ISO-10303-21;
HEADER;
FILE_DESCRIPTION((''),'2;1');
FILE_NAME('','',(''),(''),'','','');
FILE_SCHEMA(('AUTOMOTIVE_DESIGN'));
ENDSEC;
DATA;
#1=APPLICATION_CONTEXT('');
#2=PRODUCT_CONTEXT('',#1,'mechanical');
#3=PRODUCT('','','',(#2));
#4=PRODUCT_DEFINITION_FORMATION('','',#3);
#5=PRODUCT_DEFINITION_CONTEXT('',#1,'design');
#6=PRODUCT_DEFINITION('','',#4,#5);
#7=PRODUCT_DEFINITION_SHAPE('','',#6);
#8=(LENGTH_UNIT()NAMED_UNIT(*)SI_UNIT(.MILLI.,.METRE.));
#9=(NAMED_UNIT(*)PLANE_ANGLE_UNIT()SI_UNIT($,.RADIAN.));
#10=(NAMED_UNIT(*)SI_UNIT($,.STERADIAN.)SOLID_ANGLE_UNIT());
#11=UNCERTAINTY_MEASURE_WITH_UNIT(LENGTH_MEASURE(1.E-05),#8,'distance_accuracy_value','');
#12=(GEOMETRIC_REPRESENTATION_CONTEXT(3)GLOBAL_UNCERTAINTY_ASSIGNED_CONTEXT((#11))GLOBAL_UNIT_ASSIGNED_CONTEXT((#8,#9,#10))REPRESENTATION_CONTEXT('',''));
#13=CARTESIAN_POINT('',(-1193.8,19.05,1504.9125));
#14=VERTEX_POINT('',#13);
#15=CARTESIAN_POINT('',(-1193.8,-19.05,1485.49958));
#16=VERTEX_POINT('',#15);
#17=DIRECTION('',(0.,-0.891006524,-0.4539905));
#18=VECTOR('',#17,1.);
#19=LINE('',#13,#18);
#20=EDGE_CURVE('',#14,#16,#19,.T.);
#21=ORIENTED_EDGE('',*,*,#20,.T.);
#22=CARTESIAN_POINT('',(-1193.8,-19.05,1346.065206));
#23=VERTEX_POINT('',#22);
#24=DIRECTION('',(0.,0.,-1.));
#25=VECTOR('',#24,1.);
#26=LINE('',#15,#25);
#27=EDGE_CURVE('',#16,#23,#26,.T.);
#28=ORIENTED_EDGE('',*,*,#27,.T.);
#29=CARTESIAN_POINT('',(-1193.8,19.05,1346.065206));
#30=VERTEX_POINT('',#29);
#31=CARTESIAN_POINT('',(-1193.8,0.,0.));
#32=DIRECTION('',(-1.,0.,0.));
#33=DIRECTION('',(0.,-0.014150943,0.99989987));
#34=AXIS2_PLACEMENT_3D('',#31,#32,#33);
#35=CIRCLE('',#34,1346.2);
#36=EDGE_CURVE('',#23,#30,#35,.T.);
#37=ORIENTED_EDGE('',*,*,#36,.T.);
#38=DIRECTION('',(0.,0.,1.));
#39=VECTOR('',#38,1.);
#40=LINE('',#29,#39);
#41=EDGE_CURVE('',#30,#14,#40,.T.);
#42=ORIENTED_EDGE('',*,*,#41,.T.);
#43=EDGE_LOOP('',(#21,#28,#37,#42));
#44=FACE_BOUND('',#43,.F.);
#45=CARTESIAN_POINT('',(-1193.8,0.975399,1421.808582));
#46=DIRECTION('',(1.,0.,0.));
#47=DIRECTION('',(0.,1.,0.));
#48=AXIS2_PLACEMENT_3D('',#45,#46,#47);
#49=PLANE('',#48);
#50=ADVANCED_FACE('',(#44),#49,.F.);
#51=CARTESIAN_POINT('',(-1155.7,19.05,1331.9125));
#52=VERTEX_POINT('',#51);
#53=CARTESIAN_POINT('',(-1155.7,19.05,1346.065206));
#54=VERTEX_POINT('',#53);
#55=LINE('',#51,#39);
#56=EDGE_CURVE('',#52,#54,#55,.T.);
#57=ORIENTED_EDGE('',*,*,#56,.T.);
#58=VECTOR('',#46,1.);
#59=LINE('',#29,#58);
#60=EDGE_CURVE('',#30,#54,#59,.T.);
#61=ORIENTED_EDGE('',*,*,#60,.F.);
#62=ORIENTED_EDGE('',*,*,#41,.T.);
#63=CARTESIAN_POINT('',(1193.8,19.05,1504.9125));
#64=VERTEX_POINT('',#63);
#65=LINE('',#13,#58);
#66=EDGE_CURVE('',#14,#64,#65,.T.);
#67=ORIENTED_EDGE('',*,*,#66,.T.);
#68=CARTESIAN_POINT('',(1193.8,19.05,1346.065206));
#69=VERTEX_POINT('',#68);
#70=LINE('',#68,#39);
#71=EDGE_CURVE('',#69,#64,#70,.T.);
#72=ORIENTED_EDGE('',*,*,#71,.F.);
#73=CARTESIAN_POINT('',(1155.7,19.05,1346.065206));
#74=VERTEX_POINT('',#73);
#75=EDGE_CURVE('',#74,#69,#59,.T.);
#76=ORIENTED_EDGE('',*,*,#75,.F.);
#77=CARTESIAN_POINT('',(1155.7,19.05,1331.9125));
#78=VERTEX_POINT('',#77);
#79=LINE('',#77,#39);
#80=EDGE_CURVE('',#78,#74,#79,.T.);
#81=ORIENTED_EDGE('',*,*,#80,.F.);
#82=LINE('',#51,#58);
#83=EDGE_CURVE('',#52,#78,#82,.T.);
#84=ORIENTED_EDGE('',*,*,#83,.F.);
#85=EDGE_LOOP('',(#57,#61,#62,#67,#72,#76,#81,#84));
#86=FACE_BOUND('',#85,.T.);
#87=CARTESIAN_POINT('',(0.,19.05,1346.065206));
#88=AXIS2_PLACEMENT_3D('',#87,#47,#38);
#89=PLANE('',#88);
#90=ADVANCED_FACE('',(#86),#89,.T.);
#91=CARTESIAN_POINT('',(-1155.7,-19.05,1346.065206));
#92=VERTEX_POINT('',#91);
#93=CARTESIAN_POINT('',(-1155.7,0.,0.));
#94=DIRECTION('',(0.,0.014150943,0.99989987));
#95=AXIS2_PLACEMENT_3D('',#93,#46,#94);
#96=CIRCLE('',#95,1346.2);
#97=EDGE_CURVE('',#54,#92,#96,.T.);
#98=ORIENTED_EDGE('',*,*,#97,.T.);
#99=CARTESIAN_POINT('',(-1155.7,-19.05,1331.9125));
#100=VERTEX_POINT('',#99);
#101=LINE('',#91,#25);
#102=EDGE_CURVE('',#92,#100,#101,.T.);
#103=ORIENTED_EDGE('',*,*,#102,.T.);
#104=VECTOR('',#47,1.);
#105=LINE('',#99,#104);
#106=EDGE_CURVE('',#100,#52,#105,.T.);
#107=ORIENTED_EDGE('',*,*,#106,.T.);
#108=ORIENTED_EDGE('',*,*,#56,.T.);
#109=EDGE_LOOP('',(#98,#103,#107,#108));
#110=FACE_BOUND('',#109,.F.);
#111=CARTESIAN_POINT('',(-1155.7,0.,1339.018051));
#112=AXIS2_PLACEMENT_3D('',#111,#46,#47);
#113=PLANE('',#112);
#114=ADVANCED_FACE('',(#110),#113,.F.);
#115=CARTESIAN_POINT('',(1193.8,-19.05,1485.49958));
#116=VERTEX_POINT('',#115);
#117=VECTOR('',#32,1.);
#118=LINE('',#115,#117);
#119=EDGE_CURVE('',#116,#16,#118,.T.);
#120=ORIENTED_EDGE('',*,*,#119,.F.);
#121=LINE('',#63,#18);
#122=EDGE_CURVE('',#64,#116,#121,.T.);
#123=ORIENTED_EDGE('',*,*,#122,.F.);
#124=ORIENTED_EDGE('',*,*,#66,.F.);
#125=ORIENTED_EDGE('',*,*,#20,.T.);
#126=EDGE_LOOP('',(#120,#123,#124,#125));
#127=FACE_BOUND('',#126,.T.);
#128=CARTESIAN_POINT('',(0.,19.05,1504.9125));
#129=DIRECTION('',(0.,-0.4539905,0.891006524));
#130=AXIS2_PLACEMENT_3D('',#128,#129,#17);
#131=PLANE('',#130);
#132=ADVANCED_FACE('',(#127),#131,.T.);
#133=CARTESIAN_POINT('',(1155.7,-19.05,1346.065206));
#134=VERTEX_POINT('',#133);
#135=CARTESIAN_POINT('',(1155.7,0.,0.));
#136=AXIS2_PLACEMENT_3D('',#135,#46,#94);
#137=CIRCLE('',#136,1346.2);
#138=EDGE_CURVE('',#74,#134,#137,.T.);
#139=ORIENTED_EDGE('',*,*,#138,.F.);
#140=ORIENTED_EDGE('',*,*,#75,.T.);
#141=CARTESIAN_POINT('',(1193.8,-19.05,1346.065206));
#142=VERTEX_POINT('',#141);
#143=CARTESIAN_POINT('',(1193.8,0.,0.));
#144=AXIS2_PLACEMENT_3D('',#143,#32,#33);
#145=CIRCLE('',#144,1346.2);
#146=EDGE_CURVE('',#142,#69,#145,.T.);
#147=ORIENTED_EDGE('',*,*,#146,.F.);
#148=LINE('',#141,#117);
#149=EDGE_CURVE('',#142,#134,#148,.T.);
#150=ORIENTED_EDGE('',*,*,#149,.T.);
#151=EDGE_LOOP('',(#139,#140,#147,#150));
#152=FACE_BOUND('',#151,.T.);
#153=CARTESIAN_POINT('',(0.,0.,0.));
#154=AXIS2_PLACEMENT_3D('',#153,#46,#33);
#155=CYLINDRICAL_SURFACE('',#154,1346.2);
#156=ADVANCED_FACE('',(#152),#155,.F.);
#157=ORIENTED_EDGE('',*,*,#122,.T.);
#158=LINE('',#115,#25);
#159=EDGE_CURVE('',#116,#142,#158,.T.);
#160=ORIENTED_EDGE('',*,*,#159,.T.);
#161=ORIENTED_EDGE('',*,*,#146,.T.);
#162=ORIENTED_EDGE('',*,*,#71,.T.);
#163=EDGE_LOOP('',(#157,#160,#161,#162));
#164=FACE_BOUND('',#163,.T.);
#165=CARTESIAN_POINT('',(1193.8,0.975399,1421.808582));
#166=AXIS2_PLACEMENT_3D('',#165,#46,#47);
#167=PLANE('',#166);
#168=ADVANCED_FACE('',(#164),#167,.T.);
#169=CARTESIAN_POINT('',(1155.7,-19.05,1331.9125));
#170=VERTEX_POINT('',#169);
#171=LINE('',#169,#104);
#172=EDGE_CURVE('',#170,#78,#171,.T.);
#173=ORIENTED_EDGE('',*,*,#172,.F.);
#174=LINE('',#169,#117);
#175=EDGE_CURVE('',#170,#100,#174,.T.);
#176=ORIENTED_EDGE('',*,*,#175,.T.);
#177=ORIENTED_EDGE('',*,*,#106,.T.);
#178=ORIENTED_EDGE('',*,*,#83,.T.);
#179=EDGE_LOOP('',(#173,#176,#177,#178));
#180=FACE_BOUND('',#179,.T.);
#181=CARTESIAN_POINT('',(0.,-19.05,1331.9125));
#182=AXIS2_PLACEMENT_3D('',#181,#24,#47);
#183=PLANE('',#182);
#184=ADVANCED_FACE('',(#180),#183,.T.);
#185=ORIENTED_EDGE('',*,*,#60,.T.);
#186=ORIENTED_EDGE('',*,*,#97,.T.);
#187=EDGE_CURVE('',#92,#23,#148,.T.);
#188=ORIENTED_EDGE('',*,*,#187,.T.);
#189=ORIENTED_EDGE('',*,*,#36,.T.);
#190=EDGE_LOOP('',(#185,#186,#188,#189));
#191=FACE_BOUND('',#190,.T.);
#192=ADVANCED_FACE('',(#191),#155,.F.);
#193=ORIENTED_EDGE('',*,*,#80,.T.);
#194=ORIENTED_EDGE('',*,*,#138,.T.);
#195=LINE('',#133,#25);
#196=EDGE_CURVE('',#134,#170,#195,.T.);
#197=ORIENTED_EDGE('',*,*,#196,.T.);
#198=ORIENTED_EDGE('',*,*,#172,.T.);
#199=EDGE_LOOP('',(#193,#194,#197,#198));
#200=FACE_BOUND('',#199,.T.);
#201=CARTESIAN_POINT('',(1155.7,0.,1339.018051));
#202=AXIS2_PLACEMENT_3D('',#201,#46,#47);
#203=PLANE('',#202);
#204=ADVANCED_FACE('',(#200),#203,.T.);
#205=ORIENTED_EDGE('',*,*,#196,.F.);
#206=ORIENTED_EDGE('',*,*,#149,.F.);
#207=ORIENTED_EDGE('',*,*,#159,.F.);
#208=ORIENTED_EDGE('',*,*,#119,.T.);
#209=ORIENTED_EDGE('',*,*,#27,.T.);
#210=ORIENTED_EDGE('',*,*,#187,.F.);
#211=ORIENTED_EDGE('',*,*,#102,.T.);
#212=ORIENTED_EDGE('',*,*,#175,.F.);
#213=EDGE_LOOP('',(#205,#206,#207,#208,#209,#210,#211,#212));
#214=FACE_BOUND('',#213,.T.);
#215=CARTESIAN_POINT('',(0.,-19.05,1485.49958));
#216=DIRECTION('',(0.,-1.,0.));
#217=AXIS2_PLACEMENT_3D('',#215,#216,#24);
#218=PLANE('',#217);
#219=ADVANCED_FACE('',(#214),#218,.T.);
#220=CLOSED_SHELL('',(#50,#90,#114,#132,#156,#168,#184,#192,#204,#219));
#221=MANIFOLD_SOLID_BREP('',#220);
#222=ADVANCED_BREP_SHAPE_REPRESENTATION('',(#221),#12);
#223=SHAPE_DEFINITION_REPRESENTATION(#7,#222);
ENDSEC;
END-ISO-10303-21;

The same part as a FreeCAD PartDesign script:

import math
import FreeCAD as App
import Part
import Sketcher

V = App.Vector
Q = App.Units.Quantity

doc = App.newDocument("Part")
body = doc.addObject("PartDesign::Body", "Body")

sketch1 = doc.addObject("Sketcher::SketchObject", "Sketch")
body.addObject(sketch1)
sketch1.AttachmentSupport = (doc.YZ_Plane, [""])
sketch1.MapMode = "FlatFace"
sketch1.addGeometry([
    Part.ArcOfCircle(Part.Circle(V(0, 0, 0), V(0, 0, 1), 1346), math.radians(89.19), math.radians(90.81)),
    Part.LineSegment(V(19, 1346, 0), V(19, 1505, 0)),
    Part.LineSegment(V(19, 1505, 0), V(-19, 1485, 0)),
    Part.LineSegment(V(-19, 1485, 0), V(-19, 1346, 0)),
], False)
sketch1.addConstraint([
    Sketcher.Constraint("Coincident", 0, 1, 1, 1),
    Sketcher.Constraint("Coincident", 1, 2, 2, 1),
    Sketcher.Constraint("Coincident", 2, 2, 3, 1),
    Sketcher.Constraint("Coincident", 3, 2, 0, 2),
    Sketcher.Constraint("Vertical", 1),
    Sketcher.Constraint("Vertical", 3),
    Sketcher.Constraint("Coincident", 0, 3, -1, 1),
    Sketcher.Constraint("Radius", 0, Q("53 in")),
    Sketcher.Constraint("Angle", 2, Q("-153 deg")),
    Sketcher.Constraint("DistanceX", 2, 2, 1, 2, Q("1.5 in")),
    Sketcher.Constraint("DistanceX", -1, 1, 1, 2, Q("0.75 in")),
    Sketcher.Constraint("DistanceY", -1, 1, 1, 2, Q("1504.9125 mm")),
])
pad1 = doc.addObject("PartDesign::Pad", "Pad")
body.addObject(pad1)
pad1.Profile = sketch1
pad1.Length = Q("94 in")
pad1.Midplane = True

sketch2 = doc.addObject("Sketcher::SketchObject", "Sketch001")
body.addObject(sketch2)
sketch2.AttachmentSupport = (doc.YZ_Plane, [""])
sketch2.MapMode = "FlatFace"
sketch2.addGeometry([
    Part.LineSegment(V(-19, 1332, 0), V(19, 1332, 0)),
    Part.LineSegment(V(19, 1332, 0), V(19, 1346, 0)),
    Part.ArcOfCircle(Part.Circle(V(0, 0, 0), V(0, 0, 1), 1346), math.radians(89.19), math.radians(90.81)),
    Part.LineSegment(V(-19, 1346, 0), V(-19, 1332, 0)),
], False)
sketch2.addConstraint([
    Sketcher.Constraint("Coincident", 0, 2, 1, 1),
    Sketcher.Constraint("Coincident", 1, 2, 2, 1),
    Sketcher.Constraint("Coincident", 2, 2, 3, 1),
    Sketcher.Constraint("Coincident", 3, 2, 0, 1),
    Sketcher.Constraint("Horizontal", 0),
    Sketcher.Constraint("Vertical", 1),
    Sketcher.Constraint("Vertical", 3),
    Sketcher.Constraint("Coincident", 2, 3, -1, 1),
    Sketcher.Constraint("Equal", 1, 3),
    Sketcher.Constraint("Radius", 2, Q("53 in")),
    Sketcher.Constraint("DistanceX", 0, 1, 0, 2, Q("1.5 in")),
    Sketcher.Constraint("DistanceY", -1, 1, 0, 2, Q("52.4375 in")),
])
pad2 = doc.addObject("PartDesign::Pad", "Pad001")
body.addObject(pad2)
pad2.Profile = sketch2
pad2.Length = Q("91 in")
pad2.Midplane = True

doc.recompute()
